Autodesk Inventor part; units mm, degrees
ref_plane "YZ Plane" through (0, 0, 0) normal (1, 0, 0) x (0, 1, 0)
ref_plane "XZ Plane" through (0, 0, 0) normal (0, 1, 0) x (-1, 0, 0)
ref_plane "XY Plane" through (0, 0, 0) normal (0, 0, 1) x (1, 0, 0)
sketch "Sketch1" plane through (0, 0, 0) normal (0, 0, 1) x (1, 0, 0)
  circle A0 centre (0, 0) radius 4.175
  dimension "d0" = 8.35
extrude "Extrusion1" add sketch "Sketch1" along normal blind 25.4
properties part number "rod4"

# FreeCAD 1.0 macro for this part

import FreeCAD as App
import Part
import Sketcher
from FreeCAD import Vector
Q = App.Units.Quantity

doc = App.newDocument("Part")
body = doc.addObject("PartDesign::Body", "Body")

# Sketch on XY plane
sketch1 = body.newObject("Sketcher::SketchObject", "Sketch")
sketch1.AttachmentSupport = (doc.getObject("XY_Plane"), [""])
sketch1.MapMode = "FlatFace"
sketch1.addGeometry(Part.Circle(Vector(0, 0, 0), Vector(0, 0, 1), 4.2), False)
sketch1.addConstraint(Sketcher.Constraint("Coincident", 0, 3, -1, 1))
sketch1.addConstraint(Sketcher.Constraint("Diameter", 0, Q("8.35 mm")))
pad1 = body.newObject("PartDesign::Pad", "Pad")
pad1.Profile = sketch1
pad1.Length = Q("1 in")

doc.recompute()
